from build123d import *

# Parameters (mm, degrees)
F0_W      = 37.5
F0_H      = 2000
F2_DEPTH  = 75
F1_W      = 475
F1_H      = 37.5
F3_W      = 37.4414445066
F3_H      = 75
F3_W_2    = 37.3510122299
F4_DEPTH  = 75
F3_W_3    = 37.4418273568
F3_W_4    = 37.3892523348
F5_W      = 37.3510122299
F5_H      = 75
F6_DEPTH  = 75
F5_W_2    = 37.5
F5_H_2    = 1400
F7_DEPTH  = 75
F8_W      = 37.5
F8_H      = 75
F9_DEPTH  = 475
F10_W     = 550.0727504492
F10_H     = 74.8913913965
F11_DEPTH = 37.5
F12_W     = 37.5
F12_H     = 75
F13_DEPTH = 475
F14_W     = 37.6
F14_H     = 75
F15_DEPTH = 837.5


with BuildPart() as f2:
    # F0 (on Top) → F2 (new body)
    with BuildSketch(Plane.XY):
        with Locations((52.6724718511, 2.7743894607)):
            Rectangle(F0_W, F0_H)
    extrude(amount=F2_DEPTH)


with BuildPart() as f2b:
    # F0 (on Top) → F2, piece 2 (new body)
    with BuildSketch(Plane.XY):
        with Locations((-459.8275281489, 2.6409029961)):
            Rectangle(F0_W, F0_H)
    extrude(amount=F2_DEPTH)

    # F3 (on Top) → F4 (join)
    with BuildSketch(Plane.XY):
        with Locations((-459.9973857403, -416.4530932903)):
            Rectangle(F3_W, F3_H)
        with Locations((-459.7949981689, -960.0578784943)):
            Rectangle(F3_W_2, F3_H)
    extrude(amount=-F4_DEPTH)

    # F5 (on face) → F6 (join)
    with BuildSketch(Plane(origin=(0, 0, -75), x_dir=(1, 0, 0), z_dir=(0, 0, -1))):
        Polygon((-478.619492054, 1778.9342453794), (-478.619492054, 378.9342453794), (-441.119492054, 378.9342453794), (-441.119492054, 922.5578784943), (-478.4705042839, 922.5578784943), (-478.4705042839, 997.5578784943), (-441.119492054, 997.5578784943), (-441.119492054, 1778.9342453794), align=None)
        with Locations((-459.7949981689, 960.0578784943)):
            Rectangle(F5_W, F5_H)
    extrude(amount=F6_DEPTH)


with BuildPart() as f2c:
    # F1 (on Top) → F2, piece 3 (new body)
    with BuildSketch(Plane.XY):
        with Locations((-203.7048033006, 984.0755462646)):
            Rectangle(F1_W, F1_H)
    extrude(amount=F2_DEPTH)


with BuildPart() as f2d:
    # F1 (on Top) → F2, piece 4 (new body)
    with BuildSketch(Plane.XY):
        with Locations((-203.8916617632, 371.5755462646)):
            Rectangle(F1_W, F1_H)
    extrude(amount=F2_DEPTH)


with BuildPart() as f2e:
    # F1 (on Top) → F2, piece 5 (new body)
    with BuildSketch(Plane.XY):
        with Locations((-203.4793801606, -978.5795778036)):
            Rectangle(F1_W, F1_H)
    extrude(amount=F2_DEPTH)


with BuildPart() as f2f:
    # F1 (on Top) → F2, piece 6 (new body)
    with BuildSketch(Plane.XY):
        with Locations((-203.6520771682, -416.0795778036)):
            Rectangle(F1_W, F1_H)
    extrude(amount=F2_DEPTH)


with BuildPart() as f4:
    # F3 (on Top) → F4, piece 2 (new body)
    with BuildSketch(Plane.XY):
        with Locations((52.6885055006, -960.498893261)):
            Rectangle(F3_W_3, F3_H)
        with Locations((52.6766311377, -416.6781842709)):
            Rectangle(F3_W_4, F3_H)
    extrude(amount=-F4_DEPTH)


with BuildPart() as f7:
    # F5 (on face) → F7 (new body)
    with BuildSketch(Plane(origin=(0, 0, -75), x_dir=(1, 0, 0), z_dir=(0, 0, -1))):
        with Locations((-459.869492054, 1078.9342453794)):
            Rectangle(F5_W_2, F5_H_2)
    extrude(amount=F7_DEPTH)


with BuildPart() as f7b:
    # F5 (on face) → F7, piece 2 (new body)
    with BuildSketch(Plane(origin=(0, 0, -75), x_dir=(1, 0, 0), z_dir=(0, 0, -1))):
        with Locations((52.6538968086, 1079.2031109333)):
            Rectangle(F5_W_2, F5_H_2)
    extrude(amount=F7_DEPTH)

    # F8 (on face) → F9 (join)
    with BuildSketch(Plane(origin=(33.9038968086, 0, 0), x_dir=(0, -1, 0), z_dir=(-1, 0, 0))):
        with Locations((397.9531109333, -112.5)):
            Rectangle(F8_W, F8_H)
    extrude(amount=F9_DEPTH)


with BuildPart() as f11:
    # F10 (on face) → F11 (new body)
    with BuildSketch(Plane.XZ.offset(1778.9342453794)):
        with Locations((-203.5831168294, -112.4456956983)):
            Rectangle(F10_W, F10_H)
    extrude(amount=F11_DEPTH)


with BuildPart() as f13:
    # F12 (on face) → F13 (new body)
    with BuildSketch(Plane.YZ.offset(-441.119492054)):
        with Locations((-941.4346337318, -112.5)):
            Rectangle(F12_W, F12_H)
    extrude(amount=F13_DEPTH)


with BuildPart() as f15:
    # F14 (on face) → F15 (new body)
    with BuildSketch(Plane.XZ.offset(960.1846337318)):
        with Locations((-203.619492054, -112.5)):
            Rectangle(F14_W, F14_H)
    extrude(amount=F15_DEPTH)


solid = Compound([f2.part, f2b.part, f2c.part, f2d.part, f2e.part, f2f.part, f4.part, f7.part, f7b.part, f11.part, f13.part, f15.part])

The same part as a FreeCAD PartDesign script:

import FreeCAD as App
import Part
import Sketcher
Q = App.Units.Quantity


def add_polygon(sketch, points):
    """Adds a closed chain of lines whose ends are joined by coincident constraints."""
    first, n = sketch.GeometryCount, len(points)
    for a, b in zip(points, points[1:] + points[:1]):
        sketch.addGeometry(Part.LineSegment(App.Vector(*a, 0), App.Vector(*b, 0)), False)
    for i in range(n):
        sketch.addConstraint(Sketcher.Constraint("Coincident", first + i, 2, first + (i + 1) % n, 1))

doc = App.newDocument("Part")
body = doc.addObject("PartDesign::Body", "Body")

sketch1 = body.newObject("Sketcher::SketchObject", "Sketch")
sketch1.AttachmentSupport = (doc.getObject("XY_Plane"), [""])
sketch1.MapMode = "FlatFace"
add_polygon(sketch1, [(34, 1003), (34, -997), (71, -997), (71, 1003)])
sketch1.addConstraint([
    Sketcher.Constraint("Vertical", 0),
    Sketcher.Constraint("Horizontal", 1),
    Sketcher.Constraint("Vertical", 2),
    Sketcher.Constraint("Horizontal", 3),
    Sketcher.Constraint("DistanceY", 0, 2, 0, 1, Q("2000 mm")),
    Sketcher.Constraint("DistanceX", 1, 1, 1, 2, Q("37.5 mm")),
    Sketcher.Constraint("DistanceX", -1, 1, 0, 2, Q("33.922472 mm")),
    Sketcher.Constraint("DistanceY", 0, 2, -1, 1, Q("997.225611 mm")),
])
pad1 = body.newObject("PartDesign::Pad", "Pad")
pad1.Profile = sketch1
pad1.Length = 75
body2 = doc.addObject("PartDesign::Body", "Body001")

sketch2 = body2.newObject("Sketcher::SketchObject", "Sketch001")
sketch2.AttachmentSupport = (doc.getObject("XY_Plane001"), [""])
sketch2.MapMode = "FlatFace"
add_polygon(sketch2, [(-479, 1003), (-479, -997), (-441, -997), (-441, 1003)])
sketch2.addConstraint([
    Sketcher.Constraint("Vertical", 0),
    Sketcher.Constraint("Horizontal", 1),
    Sketcher.Constraint("Vertical", 2),
    Sketcher.Constraint("Horizontal", 3),
    Sketcher.Constraint("DistanceY", 0, 2, 0, 1, Q("2000 mm")),
    Sketcher.Constraint("DistanceX", 1, 1, 1, 2, Q("37.5 mm")),
    Sketcher.Constraint("DistanceX", 0, 2, -1, 1, Q("478.577528 mm")),
    Sketcher.Constraint("DistanceY", 0, 2, -1, 1, Q("997.359097 mm")),
])
pad2 = body2.newObject("PartDesign::Pad", "Pad001")
pad2.Profile = sketch2
pad2.Length = 75

sketch3 = body2.newObject("Sketcher::SketchObject", "Sketch002")
sketch3.AttachmentSupport = (doc.getObject("XY_Plane001"), [""])
sketch3.MapMode = "FlatFace"
add_polygon(sketch3, [(-479, -379), (-479, -454), (-441, -454), (-441, -379)])
add_polygon(sketch3, [(-478, -923), (-478, -998), (-441, -998), (-441, -923)])
sketch3.addConstraint([
    Sketcher.Constraint("Vertical", 0),
    Sketcher.Constraint("Horizontal", 1),
    Sketcher.Constraint("Vertical", 2),
    Sketcher.Constraint("Horizontal", 3),
    Sketcher.Constraint("Vertical", 4),
    Sketcher.Constraint("Horizontal", 5),
    Sketcher.Constraint("Vertical", 6),
    Sketcher.Constraint("Horizontal", 7),
    Sketcher.Constraint("Equal", 2, 4),
    Sketcher.Constraint("DistanceY", 0, 2, 0, 1, Q("75 mm")),
    Sketcher.Constraint("DistanceX", 1, 1, 1, 2, Q("37.441445 mm")),
    Sketcher.Constraint("DistanceX", 5, 1, 5, 2, Q("37.351012 mm")),
    Sketcher.Constraint("DistanceY", 4, 2, -1, 1, Q("997.557878 mm")),
    Sketcher.Constraint("DistanceX", 4, 2, 1, 2, Q("37.193841 mm")),
    Sketcher.Constraint("DistanceX", 0, 2, -1, 1, Q("478.718108 mm")),
    Sketcher.Constraint("DistanceY", 0, 2, -1, 1, Q("453.953093 mm")),
])
pad3 = body2.newObject("PartDesign::Pad", "Pad002")
pad3.Profile = sketch3
pad3.Length = 75
pad3.Reversed = True

sketch4 = body2.newObject("Sketcher::SketchObject", "Sketch003")
sketch4.AttachmentSupport = (doc.getObject("XY_Plane001"), [""])
sketch4.MapMode = "FlatFace"
sketch4.AttachmentOffset = App.Placement(App.Vector(0, 0, -75), App.Rotation())
add_polygon(sketch4, [(-479, -1779), (-479, -379), (-441, -379), (-441, -1779)])
sketch4.addConstraint([
    Sketcher.Constraint("Vertical", 0),
    Sketcher.Constraint("Horizontal", 1),
    Sketcher.Constraint("Vertical", 2),
    Sketcher.Constraint("Horizontal", 3),
    Sketcher.Constraint("DistanceY", 0, 1, 0, 2, Q("1400 mm")),
    Sketcher.Constraint("DistanceX", 1, 1, 1, 2, Q("37.5 mm")),
    Sketcher.Constraint("DistanceX", 0, 2, -1, 1, Q("478.619492 mm")),
    Sketcher.Constraint("DistanceY", 0, 2, -1, 1, Q("378.934245 mm")),
])
pad4 = body2.newObject("PartDesign::Pad", "Pad003")
pad4.Profile = sketch4
pad4.Length = 75
pad4.Reversed = True
body3 = doc.addObject("PartDesign::Body", "Body002")

sketch5 = body3.newObject("Sketcher::SketchObject", "Sketch004")
sketch5.AttachmentSupport = (doc.getObject("XY_Plane002"), [""])
sketch5.MapMode = "FlatFace"
add_polygon(sketch5, [(-441, 1003), (-441, 965), (34, 965), (34, 1003)])
sketch5.addConstraint([
    Sketcher.Constraint("Vertical", 0),
    Sketcher.Constraint("Horizontal", 1),
    Sketcher.Constraint("Vertical", 2),
    Sketcher.Constraint("Horizontal", 3),
    Sketcher.Constraint("DistanceX", 1, 1, 1, 2, Q("475 mm")),
    Sketcher.Constraint("DistanceY", 0, 2, 0, 1, Q("37.5 mm")),
    Sketcher.Constraint("DistanceX", 0, 2, -1, 1, Q("441.204803 mm")),
    Sketcher.Constraint("DistanceY", -1, 1, 0, 2, Q("965.325546 mm")),
])
pad5 = body3.newObject("PartDesign::Pad", "Pad004")
pad5.Profile = sketch5
pad5.Length = 75
body4 = doc.addObject("PartDesign::Body", "Body003")

sketch6 = body4.newObject("Sketcher::SketchObject", "Sketch005")
sketch6.AttachmentSupport = (doc.getObject("XY_Plane003"), [""])
sketch6.MapMode = "FlatFace"
add_polygon(sketch6, [(-441, 390), (-441, 353), (34, 353), (34, 390)])
sketch6.addConstraint([
    Sketcher.Constraint("Vertical", 0),
    Sketcher.Constraint("Horizontal", 1),
    Sketcher.Constraint("Vertical", 2),
    Sketcher.Constraint("Horizontal", 3),
    Sketcher.Constraint("DistanceX", 1, 1, 1, 2, Q("475 mm")),
    Sketcher.Constraint("DistanceY", 0, 2, 0, 1, Q("37.5 mm")),
    Sketcher.Constraint("DistanceX", 0, 2, -1, 1, Q("441.391662 mm")),
    Sketcher.Constraint("DistanceY", -1, 1, 0, 2, Q("352.825546 mm")),
])
pad6 = body4.newObject("PartDesign::Pad", "Pad005")
pad6.Profile = sketch6
pad6.Length = 75
body5 = doc.addObject("PartDesign::Body", "Body004")

sketch7 = body5.newObject("Sketcher::SketchObject", "Sketch006")
sketch7.AttachmentSupport = (doc.getObject("XY_Plane004"), [""])
sketch7.MapMode = "FlatFace"
add_polygon(sketch7, [(-441, -960), (-441, -997), (34, -997), (34, -960)])
sketch7.addConstraint([
    Sketcher.Constraint("Vertical", 0),
    Sketcher.Constraint("Horizontal", 1),
    Sketcher.Constraint("Vertical", 2),
    Sketcher.Constraint("Horizontal", 3),
    Sketcher.Constraint("DistanceX", 1, 1, 1, 2, Q("475 mm")),
    Sketcher.Constraint("DistanceY", 0, 2, 0, 1, Q("37.5 mm")),
    Sketcher.Constraint("DistanceX", 0, 2, -1, 1, Q("440.97938 mm")),
    Sketcher.Constraint("DistanceY", 0, 2, -1, 1, Q("997.329578 mm")),
])
pad7 = body5.newObject("PartDesign::Pad", "Pad006")
pad7.Profile = sketch7
pad7.Length = 75
body6 = doc.addObject("PartDesign::Body", "Body005")

sketch8 = body6.newObject("Sketcher::SketchObject", "Sketch007")
sketch8.AttachmentSupport = (doc.getObject("XY_Plane005"), [""])
sketch8.MapMode = "FlatFace"
add_polygon(sketch8, [(-441, -397), (-441, -435), (34, -435), (34, -397)])
sketch8.addConstraint([
    Sketcher.Constraint("Vertical", 0),
    Sketcher.Constraint("Horizontal", 1),
    Sketcher.Constraint("Vertical", 2),
    Sketcher.Constraint("Horizontal", 3),
    Sketcher.Constraint("DistanceX", 1, 1, 1, 2, Q("475 mm")),
    Sketcher.Constraint("DistanceY", 0, 2, 0, 1, Q("37.5 mm")),
    Sketcher.Constraint("DistanceX", 0, 2, -1, 1, Q("441.152077 mm")),
    Sketcher.Constraint("DistanceY", 0, 2, -1, 1, Q("434.829578 mm")),
])
pad8 = body6.newObject("PartDesign::Pad", "Pad007")
pad8.Profile = sketch8
pad8.Length = 75
body7 = doc.addObject("PartDesign::Body", "Body006")
body7.AllowCompound = True

sketch9 = body7.newObject("Sketcher::SketchObject", "Sketch008")
sketch9.AttachmentSupport = (doc.getObject("XY_Plane006"), [""])
sketch9.MapMode = "FlatFace"
add_polygon(sketch9, [(34, -923), (34, -998), (71, -998), (71, -923)])
add_polygon(sketch9, [(34, -379), (34, -454), (71, -454), (71, -379)])
sketch9.addConstraint([
    Sketcher.Constraint("Vertical", 0),
    Sketcher.Constraint("Horizontal", 1),
    Sketcher.Constraint("Vertical", 2),
    Sketcher.Constraint("Horizontal", 3),
    Sketcher.Constraint("Vertical", 4),
    Sketcher.Constraint("Horizontal", 5),
    Sketcher.Constraint("Vertical", 6),
    Sketcher.Constraint("Horizontal", 7),
    Sketcher.Constraint("Equal", 2, 4),
    Sketcher.Constraint("DistanceY", 0, 2, 0, 1, Q("75 mm")),
    Sketcher.Constraint("DistanceX", 1, 1, 1, 2, Q("37.441827 mm")),
    Sketcher.Constraint("DistanceX", 5, 1, 5, 2, Q("37.389252 mm")),
    Sketcher.Constraint("DistanceX", -1, 1, 0, 2, Q("33.967592 mm")),
    Sketcher.Constraint("DistanceY", 3, 2, 4, 2, Q("468.820709 mm")),
    Sketcher.Constraint("DistanceX", 5, 2, 2, 2, Q("0.038162 mm")),
    Sketcher.Constraint("DistanceY", 0, 2, -1, 1, Q("997.998893 mm")),
])
pad9 = body7.newObject("PartDesign::Pad", "Pad008")
pad9.Profile = sketch9
pad9.Length = 75
pad9.Reversed = True
body8 = doc.addObject("PartDesign::Body", "Body007")

sketch10 = body8.newObject("Sketcher::SketchObject", "Sketch009")
sketch10.AttachmentSupport = (doc.getObject("XY_Plane007"), [""])
sketch10.MapMode = "FlatFace"
sketch10.AttachmentOffset = App.Placement(App.Vector(0, 0, -75), App.Rotation())
add_polygon(sketch10, [(-479, -1779), (-479, -379), (-441, -379), (-441, -1779)])
sketch10.addConstraint([
    Sketcher.Constraint("Vertical", 0),
    Sketcher.Constraint("Horizontal", 1),
    Sketcher.Constraint("Vertical", 2),
    Sketcher.Constraint("Horizontal", 3),
    Sketcher.Constraint("DistanceY", 0, 1, 0, 2, Q("1400 mm")),
    Sketcher.Constraint("DistanceX", 1, 1, 1, 2, Q("37.5 mm")),
    Sketcher.Constraint("DistanceX", 0, 2, -1, 1, Q("478.619492 mm")),
    Sketcher.Constraint("DistanceY", 0, 2, -1, 1, Q("378.934245 mm")),
])
pad10 = body8.newObject("PartDesign::Pad", "Pad009")
pad10.Profile = sketch10
pad10.Length = 75
pad10.Reversed = True
body9 = doc.addObject("PartDesign::Body", "Body008")

sketch11 = body9.newObject("Sketcher::SketchObject", "Sketch010")
sketch11.AttachmentSupport = (doc.getObject("XY_Plane008"), [""])
sketch11.MapMode = "FlatFace"
sketch11.AttachmentOffset = App.Placement(App.Vector(0, 0, -75), App.Rotation())
add_polygon(sketch11, [(34, -1779), (34, -379), (71, -379), (71, -1779)])
sketch11.addConstraint([
    Sketcher.Constraint("Vertical", 0),
    Sketcher.Constraint("Horizontal", 1),
    Sketcher.Constraint("Vertical", 2),
    Sketcher.Constraint("Horizontal", 3),
    Sketcher.Constraint("DistanceY", 0, 1, 0, 2, Q("1400 mm")),
    Sketcher.Constraint("DistanceX", 1, 1, 1, 2, Q("37.5 mm")),
    Sketcher.Constraint("DistanceY", 0, 2, -1, 1, Q("379.203111 mm")),
    Sketcher.Constraint("DistanceX", -1, 1, 0, 2, Q("33.903897 mm")),
])
pad11 = body9.newObject("PartDesign::Pad", "Pad010")
pad11.Profile = sketch11
pad11.Length = 75
pad11.Reversed = True

sketch12 = body9.newObject("Sketcher::SketchObject", "Sketch011")
sketch12.AttachmentSupport = (doc.getObject("YZ_Plane008"), [""])
sketch12.MapMode = "FlatFace"
sketch12.AttachmentOffset = App.Placement(App.Vector(0, 0, 33.903897), App.Rotation())
add_polygon(sketch12, [(-379, -75), (-379, -150), (-417, -150), (-417, -75)])
sketch12.addConstraint([
    Sketcher.Constraint("Vertical", 0),
    Sketcher.Constraint("Horizontal", 1),
    Sketcher.Constraint("Vertical", 2),
    Sketcher.Constraint("Horizontal", 3),
    Sketcher.Constraint("DistanceY", 0, 2, 0, 1, Q("75 mm")),
    Sketcher.Constraint("DistanceX", 1, 2, 1, 1, Q("37.5 mm")),
    Sketcher.Constraint("DistanceY", 0, 2, -1, 1, Q("150 mm")),
    Sketcher.Constraint("DistanceX", 0, 2, -1, 1, Q("379.203111 mm")),
])
pad12 = body9.newObject("PartDesign::Pad", "Pad011")
pad12.Profile = sketch12
pad12.Length = 475
pad12.Reversed = True
body10 = doc.addObject("PartDesign::Body", "Body009")

sketch13 = body10.newObject("Sketcher::SketchObject", "Sketch012")
sketch13.AttachmentSupport = (doc.getObject("XZ_Plane009"), [""])
sketch13.MapMode = "FlatFace"
sketch13.AttachmentOffset = App.Placement(App.Vector(0, 0, 1778.934245), App.Rotation())
add_polygon(sketch13, [(-479, -75), (-479, -150), (71, -150), (71, -75)])
sketch13.addConstraint([
    Sketcher.Constraint("Vertical", 0),
    Sketcher.Constraint("Horizontal", 1),
    Sketcher.Constraint("Vertical", 2),
    Sketcher.Constraint("Horizontal", 3),
    Sketcher.Constraint("DistanceY", 2, 2, -1, 1, Q("75 mm")),
    Sketcher.Constraint("DistanceX", 1, 1, 1, 2, Q("550.07275 mm")),
    Sketcher.Constraint("DistanceY", 0, 2, 0, 1, Q("74.891391 mm")),
    Sketcher.Constraint("DistanceX", -1, 1, 1, 2, Q("71.453258 mm")),
])
pad13 = body10.newObject("PartDesign::Pad", "Pad012")
pad13.Profile = sketch13
pad13.Length = 37.5
body11 = doc.addObject("PartDesign::Body", "Body010")

sketch14 = body11.newObject("Sketcher::SketchObject", "Sketch013")
sketch14.AttachmentSupport = (doc.getObject("YZ_Plane010"), [""])
sketch14.MapMode = "FlatFace"
sketch14.AttachmentOffset = App.Placement(App.Vector(0, 0, -441.119492), App.Rotation())
add_polygon(sketch14, [(-960, -75), (-960, -150), (-923, -150), (-923, -75)])
sketch14.addConstraint([
    Sketcher.Constraint("Vertical", 0),
    Sketcher.Constraint("Horizontal", 1),
    Sketcher.Constraint("Vertical", 2),
    Sketcher.Constraint("Horizontal", 3),
    Sketcher.Constraint("DistanceY", 0, 2, 0, 1, Q("75 mm")),
    Sketcher.Constraint("DistanceX", 1, 1, 1, 2, Q("37.5 mm")),
    Sketcher.Constraint("DistanceY", 0, 2, -1, 1, Q("150 mm")),
    Sketcher.Constraint("DistanceX", 0, 2, -1, 1, Q("960.184634 mm")),
])
pad14 = body11.newObject("PartDesign::Pad", "Pad013")
pad14.Profile = sketch14
pad14.Length = 475
body12 = doc.addObject("PartDesign::Body", "Body011")

sketch15 = body12.newObject("Sketcher::SketchObject", "Sketch014")
sketch15.AttachmentSupport = (doc.getObject("XZ_Plane011"), [""])
sketch15.MapMode = "FlatFace"
sketch15.AttachmentOffset = App.Placement(App.Vector(0, 0, 960.184634), App.Rotation())
add_polygon(sketch15, [(-222, -75), (-222, -150), (-185, -150), (-185, -75)])
sketch15.addConstraint([
    Sketcher.Constraint("Vertical", 0),
    Sketcher.Constraint("Horizontal", 1),
    Sketcher.Constraint("Vertical", 2),
    Sketcher.Constraint("Horizontal", 3),
    Sketcher.Constraint("DistanceY", 0, 2, 0, 1, Q("75 mm")),
    Sketcher.Constraint("DistanceX", 1, 1, 1, 2, Q("37.6 mm")),
    Sketcher.Constraint("DistanceY", 0, 2, -1, 1, Q("150 mm")),
    Sketcher.Constraint("DistanceX", 0, 2, -1, 1, Q("222.419492 mm")),
])
pad15 = body12.newObject("PartDesign::Pad", "Pad014")
pad15.Profile = sketch15
pad15.Length = 837.5

doc.recompute()
